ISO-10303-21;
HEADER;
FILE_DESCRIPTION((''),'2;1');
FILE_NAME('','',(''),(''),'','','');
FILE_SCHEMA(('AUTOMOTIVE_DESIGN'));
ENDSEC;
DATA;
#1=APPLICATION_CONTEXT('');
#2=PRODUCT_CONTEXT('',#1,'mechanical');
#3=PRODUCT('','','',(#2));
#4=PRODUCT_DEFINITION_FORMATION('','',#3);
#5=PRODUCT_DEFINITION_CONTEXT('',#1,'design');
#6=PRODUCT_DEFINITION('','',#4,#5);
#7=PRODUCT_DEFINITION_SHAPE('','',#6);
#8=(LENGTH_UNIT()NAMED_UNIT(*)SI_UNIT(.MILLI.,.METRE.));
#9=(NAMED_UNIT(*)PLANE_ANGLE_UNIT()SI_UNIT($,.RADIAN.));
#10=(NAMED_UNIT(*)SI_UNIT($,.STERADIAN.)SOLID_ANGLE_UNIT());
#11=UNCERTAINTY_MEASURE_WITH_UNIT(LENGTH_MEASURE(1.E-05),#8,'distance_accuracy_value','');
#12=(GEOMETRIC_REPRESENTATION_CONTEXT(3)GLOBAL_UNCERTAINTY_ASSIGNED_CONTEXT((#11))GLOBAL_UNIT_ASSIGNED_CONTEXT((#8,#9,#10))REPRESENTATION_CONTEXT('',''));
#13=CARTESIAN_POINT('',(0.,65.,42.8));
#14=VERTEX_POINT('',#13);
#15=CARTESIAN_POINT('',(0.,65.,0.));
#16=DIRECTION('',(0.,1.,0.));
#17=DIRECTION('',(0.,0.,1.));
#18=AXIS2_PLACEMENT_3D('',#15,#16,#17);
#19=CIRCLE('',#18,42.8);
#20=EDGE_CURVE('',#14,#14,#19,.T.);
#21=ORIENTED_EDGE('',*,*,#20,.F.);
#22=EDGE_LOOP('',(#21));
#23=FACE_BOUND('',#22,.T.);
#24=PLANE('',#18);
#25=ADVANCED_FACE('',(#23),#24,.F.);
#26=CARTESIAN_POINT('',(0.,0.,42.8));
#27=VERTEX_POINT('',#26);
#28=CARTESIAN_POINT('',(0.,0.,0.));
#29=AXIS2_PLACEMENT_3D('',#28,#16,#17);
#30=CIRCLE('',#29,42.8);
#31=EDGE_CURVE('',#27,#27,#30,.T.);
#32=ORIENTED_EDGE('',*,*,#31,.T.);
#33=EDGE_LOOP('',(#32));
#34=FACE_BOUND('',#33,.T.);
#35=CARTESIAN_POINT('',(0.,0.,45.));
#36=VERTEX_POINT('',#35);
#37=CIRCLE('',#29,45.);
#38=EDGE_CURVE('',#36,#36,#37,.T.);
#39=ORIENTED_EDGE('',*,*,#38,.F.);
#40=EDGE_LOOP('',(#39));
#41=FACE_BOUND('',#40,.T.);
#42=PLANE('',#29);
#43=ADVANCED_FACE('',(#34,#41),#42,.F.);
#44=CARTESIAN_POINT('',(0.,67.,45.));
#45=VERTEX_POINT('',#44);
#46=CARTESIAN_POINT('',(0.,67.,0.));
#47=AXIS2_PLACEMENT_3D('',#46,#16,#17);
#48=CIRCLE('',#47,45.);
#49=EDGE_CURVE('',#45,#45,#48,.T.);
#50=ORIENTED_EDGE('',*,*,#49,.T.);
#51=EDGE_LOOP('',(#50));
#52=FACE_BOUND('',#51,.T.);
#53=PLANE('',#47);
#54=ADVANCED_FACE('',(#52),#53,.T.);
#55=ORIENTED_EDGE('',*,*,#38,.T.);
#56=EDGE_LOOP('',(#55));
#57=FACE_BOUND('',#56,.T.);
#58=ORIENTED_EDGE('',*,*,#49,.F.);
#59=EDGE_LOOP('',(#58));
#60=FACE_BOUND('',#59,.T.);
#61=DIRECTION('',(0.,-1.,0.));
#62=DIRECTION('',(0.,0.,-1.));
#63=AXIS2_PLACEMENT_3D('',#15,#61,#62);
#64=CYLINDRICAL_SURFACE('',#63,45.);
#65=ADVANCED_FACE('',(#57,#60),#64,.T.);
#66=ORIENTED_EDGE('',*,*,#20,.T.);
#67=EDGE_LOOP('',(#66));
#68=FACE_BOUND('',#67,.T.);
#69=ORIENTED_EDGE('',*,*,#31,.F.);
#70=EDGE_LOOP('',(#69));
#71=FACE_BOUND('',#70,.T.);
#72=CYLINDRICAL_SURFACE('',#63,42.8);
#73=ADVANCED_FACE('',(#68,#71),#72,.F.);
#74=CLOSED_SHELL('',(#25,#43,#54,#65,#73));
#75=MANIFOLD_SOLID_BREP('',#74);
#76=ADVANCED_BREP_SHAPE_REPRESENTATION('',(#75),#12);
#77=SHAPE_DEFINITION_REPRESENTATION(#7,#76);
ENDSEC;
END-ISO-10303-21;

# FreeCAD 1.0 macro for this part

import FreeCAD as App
import Part
import Sketcher

V = App.Vector

doc = App.newDocument("Part")
body = doc.addObject("PartDesign::Body", "Body")

# Sketch on XZ plane
sketch1 = doc.addObject("Sketcher::SketchObject", "Sketch")
body.addObject(sketch1)
sketch1.AttachmentSupport = (doc.XZ_Plane, [""])
sketch1.MapMode = "FlatFace"
sketch1.addGeometry([
    Part.Circle(V(0, 0, 0), V(0, 0, 1), 45),
    Part.Circle(V(0, 0, 0), V(0, 0, 1), 43),
], False)
sketch1.addConstraint([
    Sketcher.Constraint("Coincident", 0, 3, -1, 1),
    Sketcher.Constraint("Coincident", 1, 3, -1, 1),
    Sketcher.Constraint("Diameter", 0, 90.0),
    Sketcher.Constraint("Diameter", 1, 85.6),
])
pad1 = doc.addObject("PartDesign::Pad", "Pad")
body.addObject(pad1)
pad1.Profile = sketch1
pad1.Length = 65
pad1.Reversed = True

# Sketch on XZ plane
sketch2 = doc.addObject("Sketcher::SketchObject", "Sketch001")
body.addObject(sketch2)
sketch2.AttachmentSupport = (doc.XZ_Plane, [""])
sketch2.MapMode = "FlatFace"
sketch2.AttachmentOffset = App.Placement(V(0, 0, -65), App.Rotation())
sketch2.addGeometry(Part.Circle(V(0, 0, 0), V(0, 0, 1), 45), False)
sketch2.addConstraint([
    Sketcher.Constraint("Coincident", 0, 3, -1, 1),
    Sketcher.Constraint("Diameter", 0, 90.0),
])
pad2 = doc.addObject("PartDesign::Pad", "Pad001")
body.addObject(pad2)
pad2.Profile = sketch2
pad2.Length = 2
pad2.Reversed = True

doc.recompute()
